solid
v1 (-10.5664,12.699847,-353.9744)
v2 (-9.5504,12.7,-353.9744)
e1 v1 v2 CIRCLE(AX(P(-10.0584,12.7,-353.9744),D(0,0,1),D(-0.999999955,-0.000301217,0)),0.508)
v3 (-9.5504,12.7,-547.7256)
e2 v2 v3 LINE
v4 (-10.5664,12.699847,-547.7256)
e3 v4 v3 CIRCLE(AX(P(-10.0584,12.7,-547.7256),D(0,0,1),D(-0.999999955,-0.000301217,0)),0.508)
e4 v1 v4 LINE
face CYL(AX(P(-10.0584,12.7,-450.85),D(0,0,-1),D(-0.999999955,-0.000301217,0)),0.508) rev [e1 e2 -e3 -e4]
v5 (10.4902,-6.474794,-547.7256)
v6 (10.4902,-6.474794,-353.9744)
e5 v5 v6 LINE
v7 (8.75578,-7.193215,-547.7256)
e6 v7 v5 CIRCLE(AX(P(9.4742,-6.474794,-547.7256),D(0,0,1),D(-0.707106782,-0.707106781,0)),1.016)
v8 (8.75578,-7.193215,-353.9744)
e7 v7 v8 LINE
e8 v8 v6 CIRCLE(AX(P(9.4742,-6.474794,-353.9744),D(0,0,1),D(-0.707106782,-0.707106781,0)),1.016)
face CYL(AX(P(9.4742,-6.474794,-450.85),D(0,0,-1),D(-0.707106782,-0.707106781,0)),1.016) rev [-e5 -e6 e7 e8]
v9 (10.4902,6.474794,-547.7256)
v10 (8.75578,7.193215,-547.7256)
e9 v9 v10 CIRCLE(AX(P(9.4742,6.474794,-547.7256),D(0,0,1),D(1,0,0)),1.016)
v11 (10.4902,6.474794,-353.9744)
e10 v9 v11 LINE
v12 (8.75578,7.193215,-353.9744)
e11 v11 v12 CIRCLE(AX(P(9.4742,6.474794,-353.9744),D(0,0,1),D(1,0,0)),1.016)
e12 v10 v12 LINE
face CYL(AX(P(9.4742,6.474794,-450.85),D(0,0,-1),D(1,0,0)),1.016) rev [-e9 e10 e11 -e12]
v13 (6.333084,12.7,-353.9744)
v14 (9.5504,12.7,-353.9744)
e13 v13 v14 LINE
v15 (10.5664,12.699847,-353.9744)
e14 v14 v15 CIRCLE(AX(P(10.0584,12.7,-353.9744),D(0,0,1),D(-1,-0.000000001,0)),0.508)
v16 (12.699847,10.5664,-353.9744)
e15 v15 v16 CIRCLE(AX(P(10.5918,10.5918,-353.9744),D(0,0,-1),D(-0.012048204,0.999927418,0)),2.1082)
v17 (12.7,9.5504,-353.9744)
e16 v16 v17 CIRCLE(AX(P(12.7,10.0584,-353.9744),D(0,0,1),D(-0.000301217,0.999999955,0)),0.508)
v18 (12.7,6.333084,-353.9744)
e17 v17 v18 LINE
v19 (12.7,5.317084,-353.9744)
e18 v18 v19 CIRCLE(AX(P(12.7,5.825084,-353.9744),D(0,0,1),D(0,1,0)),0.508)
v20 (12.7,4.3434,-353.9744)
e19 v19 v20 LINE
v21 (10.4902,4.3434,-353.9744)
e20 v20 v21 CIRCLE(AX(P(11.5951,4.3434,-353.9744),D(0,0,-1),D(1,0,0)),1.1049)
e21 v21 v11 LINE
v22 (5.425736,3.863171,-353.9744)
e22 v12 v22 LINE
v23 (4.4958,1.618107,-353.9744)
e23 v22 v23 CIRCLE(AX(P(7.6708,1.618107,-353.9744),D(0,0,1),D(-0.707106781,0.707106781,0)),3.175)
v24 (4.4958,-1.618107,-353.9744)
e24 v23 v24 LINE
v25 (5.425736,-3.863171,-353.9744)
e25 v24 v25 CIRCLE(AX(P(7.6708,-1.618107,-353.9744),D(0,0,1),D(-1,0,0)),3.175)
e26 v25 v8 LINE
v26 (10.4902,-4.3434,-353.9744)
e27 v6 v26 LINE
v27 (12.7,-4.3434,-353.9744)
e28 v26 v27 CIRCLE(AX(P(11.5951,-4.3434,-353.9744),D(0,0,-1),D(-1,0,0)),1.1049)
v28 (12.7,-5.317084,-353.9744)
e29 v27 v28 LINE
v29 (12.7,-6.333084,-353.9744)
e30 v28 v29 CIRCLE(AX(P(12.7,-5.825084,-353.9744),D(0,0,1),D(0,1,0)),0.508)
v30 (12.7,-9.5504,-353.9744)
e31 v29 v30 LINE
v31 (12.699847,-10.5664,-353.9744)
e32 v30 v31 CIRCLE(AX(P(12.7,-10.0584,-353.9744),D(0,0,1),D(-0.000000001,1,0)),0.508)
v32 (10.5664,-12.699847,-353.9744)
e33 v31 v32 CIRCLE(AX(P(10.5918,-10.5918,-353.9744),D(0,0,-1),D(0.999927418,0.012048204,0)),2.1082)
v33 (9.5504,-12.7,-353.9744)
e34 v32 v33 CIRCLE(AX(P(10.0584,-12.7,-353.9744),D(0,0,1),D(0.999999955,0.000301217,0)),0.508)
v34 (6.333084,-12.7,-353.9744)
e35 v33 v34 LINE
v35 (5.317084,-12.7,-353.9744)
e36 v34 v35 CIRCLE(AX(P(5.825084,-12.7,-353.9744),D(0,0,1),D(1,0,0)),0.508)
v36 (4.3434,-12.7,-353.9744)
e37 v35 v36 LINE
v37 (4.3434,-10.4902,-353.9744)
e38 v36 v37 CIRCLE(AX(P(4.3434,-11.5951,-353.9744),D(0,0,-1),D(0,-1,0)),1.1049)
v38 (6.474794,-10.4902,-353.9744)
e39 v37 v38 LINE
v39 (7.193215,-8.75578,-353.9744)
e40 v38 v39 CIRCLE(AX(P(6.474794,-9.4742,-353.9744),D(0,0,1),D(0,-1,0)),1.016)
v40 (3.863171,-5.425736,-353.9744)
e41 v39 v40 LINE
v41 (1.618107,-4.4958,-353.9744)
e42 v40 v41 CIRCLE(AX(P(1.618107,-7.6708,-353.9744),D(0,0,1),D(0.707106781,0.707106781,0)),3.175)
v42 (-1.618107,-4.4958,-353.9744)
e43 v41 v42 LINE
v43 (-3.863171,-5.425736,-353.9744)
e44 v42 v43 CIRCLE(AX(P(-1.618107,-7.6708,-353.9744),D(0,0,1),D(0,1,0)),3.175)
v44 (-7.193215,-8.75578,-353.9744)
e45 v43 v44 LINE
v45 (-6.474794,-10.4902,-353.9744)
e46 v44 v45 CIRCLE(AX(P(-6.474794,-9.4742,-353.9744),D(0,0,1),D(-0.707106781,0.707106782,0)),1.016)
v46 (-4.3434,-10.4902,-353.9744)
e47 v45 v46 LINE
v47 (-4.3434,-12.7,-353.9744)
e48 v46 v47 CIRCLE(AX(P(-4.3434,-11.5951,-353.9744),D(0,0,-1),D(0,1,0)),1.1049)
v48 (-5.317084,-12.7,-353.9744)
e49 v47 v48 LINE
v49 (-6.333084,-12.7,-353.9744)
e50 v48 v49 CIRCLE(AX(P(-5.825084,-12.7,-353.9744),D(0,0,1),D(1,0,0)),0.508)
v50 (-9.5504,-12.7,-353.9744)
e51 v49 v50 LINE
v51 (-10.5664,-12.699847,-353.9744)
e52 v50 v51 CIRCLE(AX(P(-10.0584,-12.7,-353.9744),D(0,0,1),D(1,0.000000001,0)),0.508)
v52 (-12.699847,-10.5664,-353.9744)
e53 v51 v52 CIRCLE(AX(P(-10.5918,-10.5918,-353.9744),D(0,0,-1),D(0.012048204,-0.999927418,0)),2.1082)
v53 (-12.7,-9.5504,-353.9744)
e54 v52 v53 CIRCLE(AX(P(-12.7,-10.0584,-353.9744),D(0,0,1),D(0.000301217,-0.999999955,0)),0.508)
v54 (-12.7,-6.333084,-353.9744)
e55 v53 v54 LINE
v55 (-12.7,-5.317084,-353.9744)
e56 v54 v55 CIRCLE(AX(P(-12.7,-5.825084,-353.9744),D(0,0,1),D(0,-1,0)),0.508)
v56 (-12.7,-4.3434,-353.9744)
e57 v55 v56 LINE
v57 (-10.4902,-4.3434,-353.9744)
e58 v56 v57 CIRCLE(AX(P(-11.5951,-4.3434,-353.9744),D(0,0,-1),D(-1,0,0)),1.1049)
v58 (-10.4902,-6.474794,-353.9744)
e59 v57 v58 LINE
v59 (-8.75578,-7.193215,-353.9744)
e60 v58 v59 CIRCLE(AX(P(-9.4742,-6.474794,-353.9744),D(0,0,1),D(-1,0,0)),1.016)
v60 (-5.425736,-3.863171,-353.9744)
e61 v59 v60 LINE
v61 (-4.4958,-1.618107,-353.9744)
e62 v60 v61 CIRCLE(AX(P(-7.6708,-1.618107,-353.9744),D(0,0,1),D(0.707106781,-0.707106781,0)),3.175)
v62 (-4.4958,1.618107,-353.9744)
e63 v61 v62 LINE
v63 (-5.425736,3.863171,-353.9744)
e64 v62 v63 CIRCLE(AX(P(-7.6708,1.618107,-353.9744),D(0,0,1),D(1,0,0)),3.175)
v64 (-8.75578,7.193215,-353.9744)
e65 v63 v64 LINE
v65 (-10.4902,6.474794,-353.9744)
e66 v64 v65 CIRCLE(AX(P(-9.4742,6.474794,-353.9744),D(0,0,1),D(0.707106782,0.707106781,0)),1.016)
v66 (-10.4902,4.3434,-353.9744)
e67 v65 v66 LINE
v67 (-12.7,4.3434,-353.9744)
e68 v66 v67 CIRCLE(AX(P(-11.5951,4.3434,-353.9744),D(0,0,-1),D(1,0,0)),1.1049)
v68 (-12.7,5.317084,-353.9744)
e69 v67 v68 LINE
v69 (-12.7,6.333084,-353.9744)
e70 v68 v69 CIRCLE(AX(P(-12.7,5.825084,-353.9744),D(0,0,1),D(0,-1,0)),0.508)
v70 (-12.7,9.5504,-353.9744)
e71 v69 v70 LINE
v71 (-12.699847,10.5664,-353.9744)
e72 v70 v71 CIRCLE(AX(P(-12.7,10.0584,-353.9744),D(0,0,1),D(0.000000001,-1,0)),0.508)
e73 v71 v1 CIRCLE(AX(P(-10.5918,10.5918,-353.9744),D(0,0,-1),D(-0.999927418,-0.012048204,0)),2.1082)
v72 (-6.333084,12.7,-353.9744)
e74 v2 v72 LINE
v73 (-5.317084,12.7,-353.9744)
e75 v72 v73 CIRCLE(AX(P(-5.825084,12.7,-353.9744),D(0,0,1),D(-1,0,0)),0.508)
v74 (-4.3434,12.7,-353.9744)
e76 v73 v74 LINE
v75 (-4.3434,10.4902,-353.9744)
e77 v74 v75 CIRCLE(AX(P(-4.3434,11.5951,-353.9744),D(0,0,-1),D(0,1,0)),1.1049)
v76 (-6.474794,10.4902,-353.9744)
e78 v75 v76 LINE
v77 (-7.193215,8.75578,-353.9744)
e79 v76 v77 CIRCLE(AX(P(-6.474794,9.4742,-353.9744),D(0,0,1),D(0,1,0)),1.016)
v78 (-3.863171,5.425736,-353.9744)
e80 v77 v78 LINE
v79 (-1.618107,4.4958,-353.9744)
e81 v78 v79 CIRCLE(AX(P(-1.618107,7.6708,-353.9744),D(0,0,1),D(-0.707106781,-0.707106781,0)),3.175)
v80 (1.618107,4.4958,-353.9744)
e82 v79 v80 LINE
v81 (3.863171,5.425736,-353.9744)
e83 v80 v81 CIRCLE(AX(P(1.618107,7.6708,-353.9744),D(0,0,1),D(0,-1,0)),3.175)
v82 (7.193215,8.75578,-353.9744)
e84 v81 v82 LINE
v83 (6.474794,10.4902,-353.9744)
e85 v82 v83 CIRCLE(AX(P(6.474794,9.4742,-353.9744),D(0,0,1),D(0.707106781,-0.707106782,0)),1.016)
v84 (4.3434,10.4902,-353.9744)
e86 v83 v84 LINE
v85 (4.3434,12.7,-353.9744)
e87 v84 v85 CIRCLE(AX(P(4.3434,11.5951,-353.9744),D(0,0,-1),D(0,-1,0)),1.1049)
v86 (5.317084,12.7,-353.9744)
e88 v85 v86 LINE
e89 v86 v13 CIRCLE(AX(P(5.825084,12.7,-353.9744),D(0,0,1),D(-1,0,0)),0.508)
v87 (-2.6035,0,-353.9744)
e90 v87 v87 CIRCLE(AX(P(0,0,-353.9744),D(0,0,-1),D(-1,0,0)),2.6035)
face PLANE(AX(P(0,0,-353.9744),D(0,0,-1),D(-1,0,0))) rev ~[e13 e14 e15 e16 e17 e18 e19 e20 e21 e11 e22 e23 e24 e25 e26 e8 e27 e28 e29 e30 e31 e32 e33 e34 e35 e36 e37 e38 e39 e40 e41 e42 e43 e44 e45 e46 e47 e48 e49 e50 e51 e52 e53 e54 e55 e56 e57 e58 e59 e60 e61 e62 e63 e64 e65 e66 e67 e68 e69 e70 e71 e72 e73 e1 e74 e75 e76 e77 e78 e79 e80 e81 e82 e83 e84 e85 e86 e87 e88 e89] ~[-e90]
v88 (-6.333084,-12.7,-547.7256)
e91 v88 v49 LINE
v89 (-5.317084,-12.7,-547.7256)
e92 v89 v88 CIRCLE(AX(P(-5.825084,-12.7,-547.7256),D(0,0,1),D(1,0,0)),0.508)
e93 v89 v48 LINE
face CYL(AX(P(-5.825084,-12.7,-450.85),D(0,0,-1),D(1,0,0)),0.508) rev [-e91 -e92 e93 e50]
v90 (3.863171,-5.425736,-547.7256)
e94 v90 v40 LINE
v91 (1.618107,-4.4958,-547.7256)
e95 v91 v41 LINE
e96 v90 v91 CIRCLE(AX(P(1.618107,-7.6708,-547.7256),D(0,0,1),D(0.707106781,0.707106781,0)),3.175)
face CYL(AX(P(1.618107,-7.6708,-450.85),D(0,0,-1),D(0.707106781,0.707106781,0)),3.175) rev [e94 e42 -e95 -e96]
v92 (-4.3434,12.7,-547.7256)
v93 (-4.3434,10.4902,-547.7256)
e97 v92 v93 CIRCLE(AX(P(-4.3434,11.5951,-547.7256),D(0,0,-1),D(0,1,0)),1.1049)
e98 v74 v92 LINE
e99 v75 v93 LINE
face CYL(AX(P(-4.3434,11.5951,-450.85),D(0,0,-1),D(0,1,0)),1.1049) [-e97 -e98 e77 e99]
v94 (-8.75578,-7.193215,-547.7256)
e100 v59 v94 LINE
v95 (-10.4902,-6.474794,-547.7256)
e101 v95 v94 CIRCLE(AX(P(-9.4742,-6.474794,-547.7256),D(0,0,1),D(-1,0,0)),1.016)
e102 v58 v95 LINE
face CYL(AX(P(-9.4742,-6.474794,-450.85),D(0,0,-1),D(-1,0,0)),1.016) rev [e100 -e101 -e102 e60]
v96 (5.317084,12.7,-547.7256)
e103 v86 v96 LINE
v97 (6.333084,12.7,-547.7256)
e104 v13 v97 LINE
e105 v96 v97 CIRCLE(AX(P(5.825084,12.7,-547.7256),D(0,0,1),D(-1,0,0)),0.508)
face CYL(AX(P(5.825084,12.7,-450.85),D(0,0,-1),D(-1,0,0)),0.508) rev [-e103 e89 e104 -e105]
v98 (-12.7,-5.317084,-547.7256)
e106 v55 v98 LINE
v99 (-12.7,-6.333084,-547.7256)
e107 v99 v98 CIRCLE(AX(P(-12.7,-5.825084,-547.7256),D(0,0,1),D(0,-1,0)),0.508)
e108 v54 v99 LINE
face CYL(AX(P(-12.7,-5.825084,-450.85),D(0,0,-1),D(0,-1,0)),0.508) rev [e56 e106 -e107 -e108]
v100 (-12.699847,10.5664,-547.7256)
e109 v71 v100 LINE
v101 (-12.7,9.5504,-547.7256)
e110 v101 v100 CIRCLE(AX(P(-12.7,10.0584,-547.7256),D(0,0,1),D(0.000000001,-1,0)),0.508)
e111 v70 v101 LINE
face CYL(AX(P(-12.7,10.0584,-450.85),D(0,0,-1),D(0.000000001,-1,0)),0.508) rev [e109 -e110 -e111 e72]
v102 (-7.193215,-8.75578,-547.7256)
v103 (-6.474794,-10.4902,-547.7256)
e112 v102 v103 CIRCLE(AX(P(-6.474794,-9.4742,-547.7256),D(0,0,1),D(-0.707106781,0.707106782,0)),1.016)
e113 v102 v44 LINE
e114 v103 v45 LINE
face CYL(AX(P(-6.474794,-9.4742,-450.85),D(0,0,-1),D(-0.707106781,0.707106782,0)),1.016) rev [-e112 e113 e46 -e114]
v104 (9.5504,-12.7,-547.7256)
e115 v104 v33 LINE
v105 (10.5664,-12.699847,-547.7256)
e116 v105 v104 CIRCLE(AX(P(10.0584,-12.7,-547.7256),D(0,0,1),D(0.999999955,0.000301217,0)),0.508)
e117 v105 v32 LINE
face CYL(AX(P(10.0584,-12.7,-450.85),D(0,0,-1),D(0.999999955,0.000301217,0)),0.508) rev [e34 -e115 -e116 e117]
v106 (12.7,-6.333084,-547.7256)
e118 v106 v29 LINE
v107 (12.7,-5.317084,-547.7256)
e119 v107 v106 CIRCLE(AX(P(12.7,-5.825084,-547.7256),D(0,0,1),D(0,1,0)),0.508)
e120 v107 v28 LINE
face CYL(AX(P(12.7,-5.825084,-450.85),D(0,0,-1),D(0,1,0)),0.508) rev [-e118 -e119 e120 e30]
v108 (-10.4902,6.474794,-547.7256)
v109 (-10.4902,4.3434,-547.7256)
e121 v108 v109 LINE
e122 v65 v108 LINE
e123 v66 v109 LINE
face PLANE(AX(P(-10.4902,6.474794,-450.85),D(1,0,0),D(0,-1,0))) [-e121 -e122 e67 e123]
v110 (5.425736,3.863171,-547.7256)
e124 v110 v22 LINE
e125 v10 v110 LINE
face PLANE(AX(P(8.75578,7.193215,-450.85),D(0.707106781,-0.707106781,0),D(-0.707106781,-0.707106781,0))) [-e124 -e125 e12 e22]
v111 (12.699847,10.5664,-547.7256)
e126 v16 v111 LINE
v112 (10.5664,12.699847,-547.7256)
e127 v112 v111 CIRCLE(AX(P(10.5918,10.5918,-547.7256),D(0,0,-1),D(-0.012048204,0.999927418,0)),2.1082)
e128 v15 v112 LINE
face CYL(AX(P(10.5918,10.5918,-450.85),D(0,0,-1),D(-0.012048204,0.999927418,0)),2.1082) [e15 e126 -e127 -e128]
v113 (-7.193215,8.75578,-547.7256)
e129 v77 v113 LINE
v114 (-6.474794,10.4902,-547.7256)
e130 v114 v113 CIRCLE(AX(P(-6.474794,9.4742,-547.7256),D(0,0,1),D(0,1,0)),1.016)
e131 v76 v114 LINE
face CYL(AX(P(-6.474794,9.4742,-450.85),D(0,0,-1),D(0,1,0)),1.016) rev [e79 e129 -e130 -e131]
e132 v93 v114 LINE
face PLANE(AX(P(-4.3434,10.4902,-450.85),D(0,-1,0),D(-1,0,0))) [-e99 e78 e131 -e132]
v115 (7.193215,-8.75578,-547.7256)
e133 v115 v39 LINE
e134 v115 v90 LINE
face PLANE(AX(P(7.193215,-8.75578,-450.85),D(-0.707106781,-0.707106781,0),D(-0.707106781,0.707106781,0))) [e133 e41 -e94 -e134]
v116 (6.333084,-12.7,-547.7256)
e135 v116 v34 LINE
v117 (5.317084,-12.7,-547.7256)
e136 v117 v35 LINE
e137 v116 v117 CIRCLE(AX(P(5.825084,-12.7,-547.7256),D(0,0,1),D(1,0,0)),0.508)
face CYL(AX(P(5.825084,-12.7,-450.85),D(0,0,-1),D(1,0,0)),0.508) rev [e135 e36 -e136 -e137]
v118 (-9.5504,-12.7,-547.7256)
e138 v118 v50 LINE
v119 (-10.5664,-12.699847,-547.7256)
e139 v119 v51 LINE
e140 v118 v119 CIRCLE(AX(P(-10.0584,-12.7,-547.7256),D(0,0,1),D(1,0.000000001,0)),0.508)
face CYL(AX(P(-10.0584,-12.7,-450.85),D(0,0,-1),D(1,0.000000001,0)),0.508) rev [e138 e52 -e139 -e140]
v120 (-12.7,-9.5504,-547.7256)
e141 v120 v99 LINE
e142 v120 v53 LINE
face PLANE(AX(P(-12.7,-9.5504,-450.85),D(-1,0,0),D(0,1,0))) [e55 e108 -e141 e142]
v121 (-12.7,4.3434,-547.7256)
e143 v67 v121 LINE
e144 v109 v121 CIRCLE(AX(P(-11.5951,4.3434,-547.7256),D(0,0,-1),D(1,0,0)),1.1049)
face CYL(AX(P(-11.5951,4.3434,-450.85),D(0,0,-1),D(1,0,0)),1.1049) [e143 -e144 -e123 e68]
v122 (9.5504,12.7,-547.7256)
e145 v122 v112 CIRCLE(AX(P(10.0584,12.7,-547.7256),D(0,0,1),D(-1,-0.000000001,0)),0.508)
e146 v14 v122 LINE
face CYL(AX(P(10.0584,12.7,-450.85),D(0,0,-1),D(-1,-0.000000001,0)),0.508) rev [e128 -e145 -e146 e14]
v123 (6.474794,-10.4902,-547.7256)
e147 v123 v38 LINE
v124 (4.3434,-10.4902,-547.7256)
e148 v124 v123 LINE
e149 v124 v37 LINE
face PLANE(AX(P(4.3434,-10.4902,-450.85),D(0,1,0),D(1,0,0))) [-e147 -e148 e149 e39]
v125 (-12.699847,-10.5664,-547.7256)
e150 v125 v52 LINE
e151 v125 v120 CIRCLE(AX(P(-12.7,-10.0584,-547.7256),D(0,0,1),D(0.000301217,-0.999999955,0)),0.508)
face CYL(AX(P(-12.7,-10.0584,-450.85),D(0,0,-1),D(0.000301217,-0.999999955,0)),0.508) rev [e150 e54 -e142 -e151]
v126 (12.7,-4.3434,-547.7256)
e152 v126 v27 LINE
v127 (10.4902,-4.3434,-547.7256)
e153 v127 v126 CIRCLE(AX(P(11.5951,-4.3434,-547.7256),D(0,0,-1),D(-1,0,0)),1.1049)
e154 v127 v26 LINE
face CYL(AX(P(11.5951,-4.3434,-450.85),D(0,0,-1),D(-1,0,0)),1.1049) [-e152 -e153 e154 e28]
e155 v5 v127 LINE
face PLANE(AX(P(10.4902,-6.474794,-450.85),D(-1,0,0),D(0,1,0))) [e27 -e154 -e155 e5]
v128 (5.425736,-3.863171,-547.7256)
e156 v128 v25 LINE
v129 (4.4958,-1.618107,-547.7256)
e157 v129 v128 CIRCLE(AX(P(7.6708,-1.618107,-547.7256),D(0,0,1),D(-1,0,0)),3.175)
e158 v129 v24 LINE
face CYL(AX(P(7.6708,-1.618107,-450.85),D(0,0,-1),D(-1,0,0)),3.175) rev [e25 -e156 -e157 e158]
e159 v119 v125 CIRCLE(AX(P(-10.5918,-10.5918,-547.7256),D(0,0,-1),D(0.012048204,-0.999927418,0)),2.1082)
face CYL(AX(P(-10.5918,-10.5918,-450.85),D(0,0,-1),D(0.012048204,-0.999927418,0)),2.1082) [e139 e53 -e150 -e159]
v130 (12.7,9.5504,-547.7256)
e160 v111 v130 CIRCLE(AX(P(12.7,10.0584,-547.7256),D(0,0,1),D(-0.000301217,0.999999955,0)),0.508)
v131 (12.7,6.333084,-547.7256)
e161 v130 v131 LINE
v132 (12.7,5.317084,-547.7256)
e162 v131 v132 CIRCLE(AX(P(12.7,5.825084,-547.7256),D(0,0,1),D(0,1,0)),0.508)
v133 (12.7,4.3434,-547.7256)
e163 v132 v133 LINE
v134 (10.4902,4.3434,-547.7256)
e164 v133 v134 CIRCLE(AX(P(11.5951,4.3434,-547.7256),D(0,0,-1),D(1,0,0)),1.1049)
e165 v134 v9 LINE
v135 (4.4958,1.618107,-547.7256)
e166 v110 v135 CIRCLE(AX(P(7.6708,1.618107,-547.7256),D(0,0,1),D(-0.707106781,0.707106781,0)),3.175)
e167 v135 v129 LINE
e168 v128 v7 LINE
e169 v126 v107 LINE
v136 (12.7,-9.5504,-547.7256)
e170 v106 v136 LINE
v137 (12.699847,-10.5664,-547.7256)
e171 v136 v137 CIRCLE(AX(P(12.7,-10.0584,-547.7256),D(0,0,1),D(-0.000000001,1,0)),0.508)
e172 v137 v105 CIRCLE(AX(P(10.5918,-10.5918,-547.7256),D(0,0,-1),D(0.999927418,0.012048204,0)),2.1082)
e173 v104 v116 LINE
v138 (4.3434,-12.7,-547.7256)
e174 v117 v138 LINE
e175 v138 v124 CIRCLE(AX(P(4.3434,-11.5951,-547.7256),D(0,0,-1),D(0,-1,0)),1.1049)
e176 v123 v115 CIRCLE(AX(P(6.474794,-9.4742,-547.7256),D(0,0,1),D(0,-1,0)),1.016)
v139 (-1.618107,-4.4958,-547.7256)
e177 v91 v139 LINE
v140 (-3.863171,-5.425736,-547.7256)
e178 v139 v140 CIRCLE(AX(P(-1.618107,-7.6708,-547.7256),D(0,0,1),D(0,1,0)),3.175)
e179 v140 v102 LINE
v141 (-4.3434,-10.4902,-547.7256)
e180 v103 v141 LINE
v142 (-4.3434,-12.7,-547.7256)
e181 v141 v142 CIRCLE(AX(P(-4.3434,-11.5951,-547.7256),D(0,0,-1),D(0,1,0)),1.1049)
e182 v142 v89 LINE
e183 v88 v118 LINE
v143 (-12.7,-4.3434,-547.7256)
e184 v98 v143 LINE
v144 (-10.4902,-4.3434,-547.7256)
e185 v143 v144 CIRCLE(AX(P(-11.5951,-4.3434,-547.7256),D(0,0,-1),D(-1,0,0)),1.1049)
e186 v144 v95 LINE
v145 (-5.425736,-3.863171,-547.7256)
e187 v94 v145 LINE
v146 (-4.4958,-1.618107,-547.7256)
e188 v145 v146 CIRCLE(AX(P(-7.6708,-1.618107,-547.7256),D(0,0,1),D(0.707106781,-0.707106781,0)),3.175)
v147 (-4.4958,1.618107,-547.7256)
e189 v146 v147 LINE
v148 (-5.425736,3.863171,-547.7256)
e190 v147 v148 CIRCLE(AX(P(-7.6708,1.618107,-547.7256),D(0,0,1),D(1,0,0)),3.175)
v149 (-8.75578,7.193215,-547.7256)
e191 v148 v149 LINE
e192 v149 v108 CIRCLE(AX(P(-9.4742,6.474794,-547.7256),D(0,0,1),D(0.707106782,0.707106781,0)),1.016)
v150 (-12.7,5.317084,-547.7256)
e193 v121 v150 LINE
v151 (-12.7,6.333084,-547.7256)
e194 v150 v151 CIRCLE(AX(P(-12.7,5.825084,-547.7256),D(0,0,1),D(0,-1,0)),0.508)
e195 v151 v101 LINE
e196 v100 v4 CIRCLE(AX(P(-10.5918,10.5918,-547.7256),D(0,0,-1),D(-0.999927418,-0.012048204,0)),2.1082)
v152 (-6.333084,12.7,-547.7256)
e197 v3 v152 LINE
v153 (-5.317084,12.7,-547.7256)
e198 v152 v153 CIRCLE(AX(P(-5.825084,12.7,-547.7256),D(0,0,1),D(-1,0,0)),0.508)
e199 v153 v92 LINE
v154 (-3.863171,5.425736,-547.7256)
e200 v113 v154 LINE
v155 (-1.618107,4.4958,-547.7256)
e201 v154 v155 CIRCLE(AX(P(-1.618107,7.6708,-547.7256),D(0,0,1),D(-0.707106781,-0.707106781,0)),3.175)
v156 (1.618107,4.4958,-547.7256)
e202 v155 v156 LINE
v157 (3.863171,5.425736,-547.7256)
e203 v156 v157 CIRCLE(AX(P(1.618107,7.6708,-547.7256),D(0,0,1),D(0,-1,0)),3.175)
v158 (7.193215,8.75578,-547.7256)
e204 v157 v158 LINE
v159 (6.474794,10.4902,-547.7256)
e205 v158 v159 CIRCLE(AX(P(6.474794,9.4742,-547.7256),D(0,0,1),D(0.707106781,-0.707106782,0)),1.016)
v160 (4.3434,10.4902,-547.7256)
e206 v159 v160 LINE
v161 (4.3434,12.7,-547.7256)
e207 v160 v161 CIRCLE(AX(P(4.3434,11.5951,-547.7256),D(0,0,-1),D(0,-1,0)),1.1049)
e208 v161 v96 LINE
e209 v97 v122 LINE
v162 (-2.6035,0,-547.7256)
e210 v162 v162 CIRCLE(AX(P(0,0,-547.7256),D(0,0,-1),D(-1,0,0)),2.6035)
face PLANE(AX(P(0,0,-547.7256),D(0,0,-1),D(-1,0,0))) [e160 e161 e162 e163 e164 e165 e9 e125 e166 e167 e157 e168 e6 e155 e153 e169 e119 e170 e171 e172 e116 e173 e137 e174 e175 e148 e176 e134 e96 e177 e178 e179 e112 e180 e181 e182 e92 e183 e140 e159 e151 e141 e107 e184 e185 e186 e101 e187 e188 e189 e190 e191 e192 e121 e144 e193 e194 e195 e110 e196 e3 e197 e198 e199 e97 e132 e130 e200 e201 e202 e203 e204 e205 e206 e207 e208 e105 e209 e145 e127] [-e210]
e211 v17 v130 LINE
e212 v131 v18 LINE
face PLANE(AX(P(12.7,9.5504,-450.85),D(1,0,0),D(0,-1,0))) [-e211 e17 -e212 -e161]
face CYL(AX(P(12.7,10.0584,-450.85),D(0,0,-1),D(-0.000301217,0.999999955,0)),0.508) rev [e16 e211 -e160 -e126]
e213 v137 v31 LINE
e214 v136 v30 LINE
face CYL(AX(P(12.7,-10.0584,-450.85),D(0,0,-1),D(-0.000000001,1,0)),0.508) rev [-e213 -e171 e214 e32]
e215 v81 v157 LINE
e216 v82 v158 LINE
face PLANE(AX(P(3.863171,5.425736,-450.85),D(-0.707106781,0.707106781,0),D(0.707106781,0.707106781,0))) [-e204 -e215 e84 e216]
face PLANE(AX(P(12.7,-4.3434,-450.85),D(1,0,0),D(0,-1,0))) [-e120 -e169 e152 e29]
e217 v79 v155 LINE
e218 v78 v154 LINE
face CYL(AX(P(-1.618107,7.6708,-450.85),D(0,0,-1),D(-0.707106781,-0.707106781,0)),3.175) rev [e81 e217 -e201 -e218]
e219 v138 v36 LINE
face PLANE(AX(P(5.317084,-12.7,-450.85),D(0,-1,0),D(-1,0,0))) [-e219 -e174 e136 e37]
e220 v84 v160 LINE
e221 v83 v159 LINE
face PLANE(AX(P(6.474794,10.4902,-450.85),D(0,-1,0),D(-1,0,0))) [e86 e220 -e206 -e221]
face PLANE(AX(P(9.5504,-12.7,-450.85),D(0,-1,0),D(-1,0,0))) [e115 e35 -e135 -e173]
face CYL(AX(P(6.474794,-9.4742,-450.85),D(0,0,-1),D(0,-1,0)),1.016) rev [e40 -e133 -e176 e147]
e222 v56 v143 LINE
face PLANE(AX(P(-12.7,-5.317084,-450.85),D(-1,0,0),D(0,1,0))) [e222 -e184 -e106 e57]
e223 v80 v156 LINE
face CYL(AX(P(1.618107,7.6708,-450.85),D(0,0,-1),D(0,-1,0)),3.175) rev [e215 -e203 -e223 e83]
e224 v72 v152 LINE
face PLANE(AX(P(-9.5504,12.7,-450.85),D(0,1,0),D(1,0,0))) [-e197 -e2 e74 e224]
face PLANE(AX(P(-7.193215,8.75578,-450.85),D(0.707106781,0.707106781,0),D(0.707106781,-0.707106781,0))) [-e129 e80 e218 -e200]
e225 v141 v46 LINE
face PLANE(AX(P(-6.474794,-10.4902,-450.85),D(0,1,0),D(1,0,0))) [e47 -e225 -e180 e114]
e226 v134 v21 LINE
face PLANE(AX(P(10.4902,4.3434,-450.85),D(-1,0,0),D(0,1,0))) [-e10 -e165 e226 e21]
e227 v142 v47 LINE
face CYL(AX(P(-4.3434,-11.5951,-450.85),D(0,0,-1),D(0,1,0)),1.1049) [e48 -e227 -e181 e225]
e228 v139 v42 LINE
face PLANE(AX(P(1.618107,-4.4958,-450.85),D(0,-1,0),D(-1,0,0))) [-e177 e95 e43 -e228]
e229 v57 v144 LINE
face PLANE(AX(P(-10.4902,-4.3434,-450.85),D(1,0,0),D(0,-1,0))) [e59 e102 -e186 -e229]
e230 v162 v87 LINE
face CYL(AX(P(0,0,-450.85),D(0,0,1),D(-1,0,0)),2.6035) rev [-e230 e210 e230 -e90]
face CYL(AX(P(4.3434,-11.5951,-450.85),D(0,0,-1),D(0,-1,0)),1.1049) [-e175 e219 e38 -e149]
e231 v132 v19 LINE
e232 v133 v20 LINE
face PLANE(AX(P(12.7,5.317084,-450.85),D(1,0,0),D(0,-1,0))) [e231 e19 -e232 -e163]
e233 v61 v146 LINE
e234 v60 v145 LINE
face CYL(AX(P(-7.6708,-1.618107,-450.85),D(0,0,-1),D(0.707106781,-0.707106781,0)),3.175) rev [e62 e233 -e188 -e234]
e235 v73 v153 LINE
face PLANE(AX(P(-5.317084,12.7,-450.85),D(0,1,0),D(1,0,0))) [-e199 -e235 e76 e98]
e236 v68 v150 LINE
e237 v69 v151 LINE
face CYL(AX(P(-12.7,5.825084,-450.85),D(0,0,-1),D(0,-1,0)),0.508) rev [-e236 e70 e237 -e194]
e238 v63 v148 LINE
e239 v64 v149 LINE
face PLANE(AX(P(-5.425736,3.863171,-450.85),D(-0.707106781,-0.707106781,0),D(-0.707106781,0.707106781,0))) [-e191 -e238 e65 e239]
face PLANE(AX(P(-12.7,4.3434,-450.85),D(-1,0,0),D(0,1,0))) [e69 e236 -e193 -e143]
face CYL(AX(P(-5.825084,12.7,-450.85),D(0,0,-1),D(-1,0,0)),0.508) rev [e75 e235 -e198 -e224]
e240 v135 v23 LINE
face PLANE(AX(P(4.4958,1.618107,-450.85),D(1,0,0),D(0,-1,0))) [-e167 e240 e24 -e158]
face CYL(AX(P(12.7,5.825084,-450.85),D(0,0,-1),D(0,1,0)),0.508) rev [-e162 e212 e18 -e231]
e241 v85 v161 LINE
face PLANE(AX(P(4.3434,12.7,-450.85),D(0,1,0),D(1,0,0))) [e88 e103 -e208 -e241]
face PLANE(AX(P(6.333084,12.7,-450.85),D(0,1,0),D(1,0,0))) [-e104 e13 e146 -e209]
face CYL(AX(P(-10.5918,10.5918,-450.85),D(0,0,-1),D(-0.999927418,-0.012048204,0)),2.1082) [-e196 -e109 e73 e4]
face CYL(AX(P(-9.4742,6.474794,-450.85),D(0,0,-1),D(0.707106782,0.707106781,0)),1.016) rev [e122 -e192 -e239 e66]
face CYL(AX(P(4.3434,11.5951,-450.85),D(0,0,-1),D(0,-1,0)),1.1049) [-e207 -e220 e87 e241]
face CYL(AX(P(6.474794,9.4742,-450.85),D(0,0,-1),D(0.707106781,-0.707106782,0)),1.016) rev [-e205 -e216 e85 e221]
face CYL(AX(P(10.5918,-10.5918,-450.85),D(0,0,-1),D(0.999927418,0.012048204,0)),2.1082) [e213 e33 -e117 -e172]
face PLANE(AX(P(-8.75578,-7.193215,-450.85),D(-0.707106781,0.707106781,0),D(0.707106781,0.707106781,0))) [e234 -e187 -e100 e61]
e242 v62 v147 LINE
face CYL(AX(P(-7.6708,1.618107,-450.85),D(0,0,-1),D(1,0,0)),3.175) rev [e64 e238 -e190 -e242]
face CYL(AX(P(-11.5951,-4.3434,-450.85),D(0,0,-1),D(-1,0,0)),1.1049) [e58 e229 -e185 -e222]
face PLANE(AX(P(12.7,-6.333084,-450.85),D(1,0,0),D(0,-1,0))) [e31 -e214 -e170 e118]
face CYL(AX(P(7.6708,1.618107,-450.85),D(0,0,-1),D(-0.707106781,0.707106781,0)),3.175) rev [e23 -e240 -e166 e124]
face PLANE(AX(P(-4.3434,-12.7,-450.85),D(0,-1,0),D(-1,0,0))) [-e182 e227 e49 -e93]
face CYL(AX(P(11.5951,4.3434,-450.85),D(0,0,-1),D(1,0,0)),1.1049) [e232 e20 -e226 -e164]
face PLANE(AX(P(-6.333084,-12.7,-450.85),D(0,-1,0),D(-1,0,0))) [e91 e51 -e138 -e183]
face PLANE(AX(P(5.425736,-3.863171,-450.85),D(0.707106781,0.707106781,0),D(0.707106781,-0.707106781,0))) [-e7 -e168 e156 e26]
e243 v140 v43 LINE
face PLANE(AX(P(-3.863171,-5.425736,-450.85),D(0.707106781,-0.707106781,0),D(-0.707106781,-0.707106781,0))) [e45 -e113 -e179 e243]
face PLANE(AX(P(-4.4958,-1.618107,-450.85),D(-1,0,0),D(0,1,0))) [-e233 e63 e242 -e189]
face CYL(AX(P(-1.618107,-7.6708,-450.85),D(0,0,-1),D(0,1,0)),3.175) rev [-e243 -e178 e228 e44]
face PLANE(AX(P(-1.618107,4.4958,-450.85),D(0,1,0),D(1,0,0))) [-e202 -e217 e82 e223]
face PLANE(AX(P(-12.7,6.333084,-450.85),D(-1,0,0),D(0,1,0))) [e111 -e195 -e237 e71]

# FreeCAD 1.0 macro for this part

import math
import FreeCAD as App
import Part
import Sketcher
from FreeCAD import Vector
Q = App.Units.Quantity

doc = App.newDocument("Part")
body = doc.addObject("PartDesign::Body", "Body")

sketch1 = body.newObject("Sketcher::SketchObject", "Sketch")
sketch1.AttachmentSupport = (doc.getObject("XY_Plane"), [""])
sketch1.MapMode = "FlatFace"
sketch1.AttachmentOffset = App.Placement(Vector(0, 0, -17.75 * 25.4), App.Rotation())
sketch1.addGeometry(Part.LineSegment(Vector(-12.7, -9.6, 0), Vector(-12.7, -6.3, 0)), False)
sketch1.addGeometry(Part.ArcOfCircle(Part.Circle(Vector(-12.7, -5.8, 0), Vector(0, 0, 1), 0.5), math.radians(-90), math.radians(90)), False)
sketch1.addGeometry(Part.LineSegment(Vector(-12.7, -5.3, 0), Vector(-12.7, -4.3, 0)), False)
sketch1.addGeometry(Part.ArcOfCircle(Part.Circle(Vector(-11.6, -4.3, 0), Vector(0, 0, 1), 1.1), math.radians(0), math.radians(180)), False)
sketch1.addGeometry(Part.LineSegment(Vector(-10.5, -4.3, 0), Vector(-10.5, -6.5, 0)), False)
sketch1.addGeometry(Part.ArcOfCircle(Part.Circle(Vector(-9.5, -6.5, 0), Vector(0, 0, 1), 1), math.radians(180), math.radians(315)), False)
sketch1.addGeometry(Part.LineSegment(Vector(-8.8, -7.2, 0), Vector(-5.4, -3.9, 0)), False)
sketch1.addGeometry(Part.ArcOfCircle(Part.Circle(Vector(-7.7, -1.6, 0), Vector(0, 0, 1), 3.2), math.radians(-45), math.radians(0)), False)
sketch1.addGeometry(Part.LineSegment(Vector(-4.5, -1.6, 0), Vector(-4.5, 1.6, 0)), False)
sketch1.addGeometry(Part.ArcOfCircle(Part.Circle(Vector(-7.7, 1.6, 0), Vector(0, 0, 1), 3.2), math.radians(0), math.radians(45)), False)
sketch1.addGeometry(Part.LineSegment(Vector(-5.4, 3.9, 0), Vector(-8.8, 7.2, 0)), False)
sketch1.addGeometry(Part.ArcOfCircle(Part.Circle(Vector(-9.5, 6.5, 0), Vector(0, 0, 1), 1), math.radians(45), math.radians(180)), False)
sketch1.addGeometry(Part.LineSegment(Vector(-10.5, 6.5, 0), Vector(-10.5, 4.3, 0)), False)
sketch1.addGeometry(Part.ArcOfCircle(Part.Circle(Vector(-11.6, 4.3, 0), Vector(0, 0, 1), 1.1), math.radians(180), math.radians(360)), False)
sketch1.addGeometry(Part.LineSegment(Vector(-12.7, 4.3, 0), Vector(-12.7, 5.3, 0)), False)
sketch1.addGeometry(Part.ArcOfCircle(Part.Circle(Vector(-12.7, 5.8, 0), Vector(0, 0, 1), 0.5), math.radians(-90), math.radians(90)), False)
sketch1.addGeometry(Part.LineSegment(Vector(-12.7, 6.3, 0), Vector(-12.7, 9.6, 0)), False)
sketch1.addGeometry(Part.ArcOfCircle(Part.Circle(Vector(-12.7, 10.1, 0), Vector(0, 0, 1), 0.5), math.radians(-90), math.radians(90)), False)
sketch1.addGeometry(Part.ArcOfCircle(Part.Circle(Vector(-10.6, 10.6, 0), Vector(0, 0, 1), 2.1), math.radians(89), math.radians(181)), False)
sketch1.addGeometry(Part.ArcOfCircle(Part.Circle(Vector(-10.1, 12.7, 0), Vector(0, 0, 1), 0.5), math.radians(-180), math.radians(0)), False)
sketch1.addGeometry(Part.LineSegment(Vector(-9.6, 12.7, 0), Vector(-6.3, 12.7, 0)), False)
sketch1.addGeometry(Part.ArcOfCircle(Part.Circle(Vector(-5.8, 12.7, 0), Vector(0, 0, 1), 0.5), math.radians(180), math.radians(360)), False)
sketch1.addGeometry(Part.LineSegment(Vector(-5.3, 12.7, 0), Vector(-4.3, 12.7, 0)), False)
sketch1.addGeometry(Part.ArcOfCircle(Part.Circle(Vector(-4.3, 11.6, 0), Vector(0, 0, 1), 1.1), math.radians(-90), math.radians(90)), False)
sketch1.addGeometry(Part.LineSegment(Vector(-4.3, 10.5, 0), Vector(-6.5, 10.5, 0)), False)
sketch1.addGeometry(Part.ArcOfCircle(Part.Circle(Vector(-6.5, 9.5, 0), Vector(0, 0, 1), 1), math.radians(90), math.radians(225)), False)
sketch1.addGeometry(Part.LineSegment(Vector(-7.2, 8.8, 0), Vector(-3.9, 5.4, 0)), False)
sketch1.addGeometry(Part.ArcOfCircle(Part.Circle(Vector(-1.6, 7.7, 0), Vector(0, 0, 1), 3.2), math.radians(-135), math.radians(-90)), False)
sketch1.addGeometry(Part.LineSegment(Vector(-1.6, 4.5, 0), Vector(1.6, 4.5, 0)), False)
sketch1.addGeometry(Part.ArcOfCircle(Part.Circle(Vector(1.6, 7.7, 0), Vector(0, 0, 1), 3.2), math.radians(-90), math.radians(-45)), False)
sketch1.addGeometry(Part.LineSegment(Vector(3.9, 5.4, 0), Vector(7.2, 8.8, 0)), False)
sketch1.addGeometry(Part.ArcOfCircle(Part.Circle(Vector(6.5, 9.5, 0), Vector(0, 0, 1), 1), math.radians(-45), math.radians(90)), False)
sketch1.addGeometry(Part.LineSegment(Vector(6.5, 10.5, 0), Vector(4.3, 10.5, 0)), False)
sketch1.addGeometry(Part.ArcOfCircle(Part.Circle(Vector(4.3, 11.6, 0), Vector(0, 0, 1), 1.1), math.radians(90), math.radians(270)), False)
sketch1.addGeometry(Part.LineSegment(Vector(4.3, 12.7, 0), Vector(5.3, 12.7, 0)), False)
sketch1.addGeometry(Part.ArcOfCircle(Part.Circle(Vector(5.8, 12.7, 0), Vector(0, 0, 1), 0.5), math.radians(180), math.radians(360)), False)
sketch1.addGeometry(Part.LineSegment(Vector(6.3, 12.7, 0), Vector(9.6, 12.7, 0)), False)
sketch1.addGeometry(Part.ArcOfCircle(Part.Circle(Vector(10.1, 12.7, 0), Vector(0, 0, 1), 0.5), math.radians(180), math.radians(360)), False)
sketch1.addGeometry(Part.ArcOfCircle(Part.Circle(Vector(10.6, 10.6, 0), Vector(0, 0, 1), 2.1), math.radians(-1), math.radians(91)), False)
sketch1.addGeometry(Part.ArcOfCircle(Part.Circle(Vector(12.7, 10.1, 0), Vector(0, 0, 1), 0.5), math.radians(90), math.radians(270)), False)
sketch1.addGeometry(Part.LineSegment(Vector(12.7, 9.6, 0), Vector(12.7, 6.3, 0)), False)
sketch1.addGeometry(Part.ArcOfCircle(Part.Circle(Vector(12.7, 5.8, 0), Vector(0, 0, 1), 0.5), math.radians(90), math.radians(270)), False)
sketch1.addGeometry(Part.LineSegment(Vector(12.7, 5.3, 0), Vector(12.7, 4.3, 0)), False)
sketch1.addGeometry(Part.ArcOfCircle(Part.Circle(Vector(11.6, 4.3, 0), Vector(0, 0, 1), 1.1), math.radians(180), math.radians(360)), False)
sketch1.addGeometry(Part.LineSegment(Vector(10.5, 4.3, 0), Vector(10.5, 6.5, 0)), False)
sketch1.addGeometry(Part.ArcOfCircle(Part.Circle(Vector(9.5, 6.5, 0), Vector(0, 0, 1), 1), math.radians(0), math.radians(135)), False)
sketch1.addGeometry(Part.LineSegment(Vector(8.8, 7.2, 0), Vector(5.4, 3.9, 0)), False)
sketch1.addGeometry(Part.ArcOfCircle(Part.Circle(Vector(7.7, 1.6, 0), Vector(0, 0, 1), 3.2), math.radians(135), math.radians(180)), False)
sketch1.addGeometry(Part.LineSegment(Vector(4.5, 1.6, 0), Vector(4.5, -1.6, 0)), False)
sketch1.addGeometry(Part.ArcOfCircle(Part.Circle(Vector(7.7, -1.6, 0), Vector(0, 0, 1), 3.2), math.radians(180), math.radians(225)), False)
sketch1.addGeometry(Part.LineSegment(Vector(5.4, -3.9, 0), Vector(8.8, -7.2, 0)), False)
sketch1.addGeometry(Part.ArcOfCircle(Part.Circle(Vector(9.5, -6.5, 0), Vector(0, 0, 1), 1), math.radians(-135), math.radians(0)), False)
sketch1.addGeometry(Part.LineSegment(Vector(10.5, -6.5, 0), Vector(10.5, -4.3, 0)), False)
sketch1.addGeometry(Part.ArcOfCircle(Part.Circle(Vector(11.6, -4.3, 0), Vector(0, 0, 1), 1.1), math.radians(0), math.radians(180)), False)
sketch1.addGeometry(Part.LineSegment(Vector(12.7, -4.3, 0), Vector(12.7, -5.3, 0)), False)
sketch1.addGeometry(Part.ArcOfCircle(Part.Circle(Vector(12.7, -5.8, 0), Vector(0, 0, 1), 0.5), math.radians(90), math.radians(270)), False)
sketch1.addGeometry(Part.LineSegment(Vector(12.7, -6.3, 0), Vector(12.7, -9.6, 0)), False)
sketch1.addGeometry(Part.ArcOfCircle(Part.Circle(Vector(12.7, -10.1, 0), Vector(0, 0, 1), 0.5), math.radians(90), math.radians(270)), False)
sketch1.addGeometry(Part.ArcOfCircle(Part.Circle(Vector(10.6, -10.6, 0), Vector(0, 0, 1), 2.1), math.radians(-91), math.radians(1)), False)
sketch1.addGeometry(Part.ArcOfCircle(Part.Circle(Vector(10.1, -12.7, 0), Vector(0, 0, 1), 0.5), math.radians(0), math.radians(180)), False)
sketch1.addGeometry(Part.LineSegment(Vector(9.6, -12.7, 0), Vector(6.3, -12.7, 0)), False)
sketch1.addGeometry(Part.ArcOfCircle(Part.Circle(Vector(5.8, -12.7, 0), Vector(0, 0, 1), 0.5), math.radians(0), math.radians(180)), False)
sketch1.addGeometry(Part.LineSegment(Vector(5.3, -12.7, 0), Vector(4.3, -12.7, 0)), False)
sketch1.addGeometry(Part.ArcOfCircle(Part.Circle(Vector(4.3, -11.6, 0), Vector(0, 0, 1), 1.1), math.radians(90), math.radians(270)), False)
sketch1.addGeometry(Part.LineSegment(Vector(4.3, -10.5, 0), Vector(6.5, -10.5, 0)), False)
sketch1.addGeometry(Part.ArcOfCircle(Part.Circle(Vector(6.5, -9.5, 0), Vector(0, 0, 1), 1), math.radians(-90), math.radians(45)), False)
sketch1.addGeometry(Part.LineSegment(Vector(7.2, -8.8, 0), Vector(3.9, -5.4, 0)), False)
sketch1.addGeometry(Part.ArcOfCircle(Part.Circle(Vector(1.6, -7.7, 0), Vector(0, 0, 1), 3.2), math.radians(45), math.radians(90)), False)
sketch1.addGeometry(Part.LineSegment(Vector(1.6, -4.5, 0), Vector(-1.6, -4.5, 0)), False)
sketch1.addGeometry(Part.ArcOfCircle(Part.Circle(Vector(-1.6, -7.7, 0), Vector(0, 0, 1), 3.2), math.radians(90), math.radians(135)), False)
sketch1.addGeometry(Part.LineSegment(Vector(-3.9, -5.4, 0), Vector(-7.2, -8.8, 0)), False)
sketch1.addGeometry(Part.ArcOfCircle(Part.Circle(Vector(-6.5, -9.5, 0), Vector(0, 0, 1), 1), math.radians(135), math.radians(270)), False)
sketch1.addGeometry(Part.LineSegment(Vector(-6.5, -10.5, 0), Vector(-4.3, -10.5, 0)), False)
sketch1.addGeometry(Part.ArcOfCircle(Part.Circle(Vector(-4.3, -11.6, 0), Vector(0, 0, 1), 1.1), math.radians(-90), math.radians(90)), False)
sketch1.addGeometry(Part.LineSegment(Vector(-4.3, -12.7, 0), Vector(-5.3, -12.7, 0)), False)
sketch1.addGeometry(Part.ArcOfCircle(Part.Circle(Vector(-5.8, -12.7, 0), Vector(0, 0, 1), 0.5), math.radians(0), math.radians(180)), False)
sketch1.addGeometry(Part.LineSegment(Vector(-6.3, -12.7, 0), Vector(-9.6, -12.7, 0)), False)
sketch1.addGeometry(Part.ArcOfCircle(Part.Circle(Vector(-10.1, -12.7, 0), Vector(0, 0, 1), 0.5), math.radians(0), math.radians(180)), False)
sketch1.addGeometry(Part.ArcOfCircle(Part.Circle(Vector(-10.6, -10.6, 0), Vector(0, 0, 1), 2.1), math.radians(179), math.radians(271)), False)
sketch1.addGeometry(Part.ArcOfCircle(Part.Circle(Vector(-12.7, -10.1, 0), Vector(0, 0, 1), 0.5), math.radians(-90), math.radians(90)), False)
sketch1.addGeometry(Part.Circle(Vector(0, 0, 0), Vector(0, 0, 1), 2.6), False)
sketch1.addConstraint(Sketcher.Constraint("Coincident", 0, 2, 1, 1))
sketch1.addConstraint(Sketcher.Constraint("Coincident", 1, 2, 2, 1))
sketch1.addConstraint(Sketcher.Constraint("Tangent", 2, 2, 3, 2))
sketch1.addConstraint(Sketcher.Constraint("Tangent", 3, 1, 4, 1))
sketch1.addConstraint(Sketcher.Constraint("Tangent", 4, 2, 5, 1))
sketch1.addConstraint(Sketcher.Constraint("Tangent", 5, 2, 6, 1))
sketch1.addConstraint(Sketcher.Constraint("Tangent", 6, 2, 7, 1))
sketch1.addConstraint(Sketcher.Constraint("Tangent", 7, 2, 8, 1))
sketch1.addConstraint(Sketcher.Constraint("Tangent", 8, 2, 9, 1))
sketch1.addConstraint(Sketcher.Constraint("Tangent", 9, 2, 10, 1))
sketch1.addConstraint(Sketcher.Constraint("Tangent", 10, 2, 11, 1))
sketch1.addConstraint(Sketcher.Constraint("Tangent", 11, 2, 12, 1))
sketch1.addConstraint(Sketcher.Constraint("Tangent", 12, 2, 13, 2))
sketch1.addConstraint(Sketcher.Constraint("Tangent", 13, 1, 14, 1))
sketch1.addConstraint(Sketcher.Constraint("Coincident", 14, 2, 15, 1))
sketch1.addConstraint(Sketcher.Constraint("Coincident", 15, 2, 16, 1))
sketch1.addConstraint(Sketcher.Constraint("Coincident", 16, 2, 17, 1))
sketch1.addConstraint(Sketcher.Constraint("Coincident", 17, 2, 18, 2))
sketch1.addConstraint(Sketcher.Constraint("Coincident", 18, 1, 19, 1))
sketch1.addConstraint(Sketcher.Constraint("Coincident", 19, 2, 20, 1))
sketch1.addConstraint(Sketcher.Constraint("Coincident", 20, 2, 21, 1))
sketch1.addConstraint(Sketcher.Constraint("Coincident", 21, 2, 22, 1))
sketch1.addConstraint(Sketcher.Constraint("Tangent", 22, 2, 23, 2))
sketch1.addConstraint(Sketcher.Constraint("Tangent", 23, 1, 24, 1))
sketch1.addConstraint(Sketcher.Constraint("Tangent", 24, 2, 25, 1))
sketch1.addConstraint(Sketcher.Constraint("Tangent", 25, 2, 26, 1))
sketch1.addConstraint(Sketcher.Constraint("Tangent", 26, 2, 27, 1))
sketch1.addConstraint(Sketcher.Constraint("Tangent", 27, 2, 28, 1))
sketch1.addConstraint(Sketcher.Constraint("Tangent", 28, 2, 29, 1))
sketch1.addConstraint(Sketcher.Constraint("Tangent", 29, 2, 30, 1))
sketch1.addConstraint(Sketcher.Constraint("Tangent", 30, 2, 31, 1))
sketch1.addConstraint(Sketcher.Constraint("Tangent", 31, 2, 32, 1))
sketch1.addConstraint(Sketcher.Constraint("Tangent", 32, 2, 33, 2))
sketch1.addConstraint(Sketcher.Constraint("Tangent", 33, 1, 34, 1))
sketch1.addConstraint(Sketcher.Constraint("Coincident", 34, 2, 35, 1))
sketch1.addConstraint(Sketcher.Constraint("Coincident", 35, 2, 36, 1))
sketch1.addConstraint(Sketcher.Constraint("Coincident", 36, 2, 37, 1))
sketch1.addConstraint(Sketcher.Constraint("Coincident", 37, 2, 38, 2))
sketch1.addConstraint(Sketcher.Constraint("Coincident", 38, 1, 39, 1))
sketch1.addConstraint(Sketcher.Constraint("Coincident", 39, 2, 40, 1))
sketch1.addConstraint(Sketcher.Constraint("Coincident", 40, 2, 41, 1))
sketch1.addConstraint(Sketcher.Constraint("Coincident", 41, 2, 42, 1))
sketch1.addConstraint(Sketcher.Constraint("Tangent", 42, 2, 43, 2))
sketch1.addConstraint(Sketcher.Constraint("Tangent", 43, 1, 44, 1))
sketch1.addConstraint(Sketcher.Constraint("Tangent", 44, 2, 45, 1))
sketch1.addConstraint(Sketcher.Constraint("Tangent", 45, 2, 46, 1))
sketch1.addConstraint(Sketcher.Constraint("Tangent", 46, 2, 47, 1))
sketch1.addConstraint(Sketcher.Constraint("Tangent", 47, 2, 48, 1))
sketch1.addConstraint(Sketcher.Constraint("Tangent", 48, 2, 49, 1))
sketch1.addConstraint(Sketcher.Constraint("Tangent", 49, 2, 50, 1))
sketch1.addConstraint(Sketcher.Constraint("Tangent", 50, 2, 51, 1))
sketch1.addConstraint(Sketcher.Constraint("Tangent", 51, 2, 52, 1))
sketch1.addConstraint(Sketcher.Constraint("Tangent", 52, 2, 53, 2))
sketch1.addConstraint(Sketcher.Constraint("Tangent", 53, 1, 54, 1))
sketch1.addConstraint(Sketcher.Constraint("Coincident", 54, 2, 55, 1))
sketch1.addConstraint(Sketcher.Constraint("Coincident", 55, 2, 56, 1))
sketch1.addConstraint(Sketcher.Constraint("Coincident", 56, 2, 57, 1))
sketch1.addConstraint(Sketcher.Constraint("Coincident", 57, 2, 58, 2))
sketch1.addConstraint(Sketcher.Constraint("Coincident", 58, 1, 59, 1))
sketch1.addConstraint(Sketcher.Constraint("Coincident", 59, 2, 60, 1))
sketch1.addConstraint(Sketcher.Constraint("Coincident", 60, 2, 61, 1))
sketch1.addConstraint(Sketcher.Constraint("Coincident", 61, 2, 62, 1))
sketch1.addConstraint(Sketcher.Constraint("Tangent", 62, 2, 63, 2))
sketch1.addConstraint(Sketcher.Constraint("Tangent", 63, 1, 64, 1))
sketch1.addConstraint(Sketcher.Constraint("Tangent", 64, 2, 65, 1))
sketch1.addConstraint(Sketcher.Constraint("Tangent", 65, 2, 66, 1))
sketch1.addConstraint(Sketcher.Constraint("Tangent", 66, 2, 67, 1))
sketch1.addConstraint(Sketcher.Constraint("Tangent", 67, 2, 68, 1))
sketch1.addConstraint(Sketcher.Constraint("Tangent", 68, 2, 69, 1))
sketch1.addConstraint(Sketcher.Constraint("Tangent", 69, 2, 70, 1))
sketch1.addConstraint(Sketcher.Constraint("Tangent", 70, 2, 71, 1))
sketch1.addConstraint(Sketcher.Constraint("Tangent", 71, 2, 72, 1))
sketch1.addConstraint(Sketcher.Constraint("Tangent", 72, 2, 73, 2))
sketch1.addConstraint(Sketcher.Constraint("Tangent", 73, 1, 74, 1))
sketch1.addConstraint(Sketcher.Constraint("Coincident", 74, 2, 75, 1))
sketch1.addConstraint(Sketcher.Constraint("Coincident", 75, 2, 76, 1))
sketch1.addConstraint(Sketcher.Constraint("Coincident", 76, 2, 77, 1))
sketch1.addConstraint(Sketcher.Constraint("Coincident", 77, 2, 78, 2))
sketch1.addConstraint(Sketcher.Constraint("Coincident", 78, 1, 79, 1))
sketch1.addConstraint(Sketcher.Constraint("Coincident", 79, 2, 0, 1))
sketch1.addConstraint(Sketcher.Constraint("Vertical", 0))
sketch1.addConstraint(Sketcher.Constraint("Vertical", 2))
sketch1.addConstraint(Sketcher.Constraint("Vertical", 4))
sketch1.addConstraint(Sketcher.Constraint("Vertical", 8))
sketch1.addConstraint(Sketcher.Constraint("Vertical", 12))
sketch1.addConstraint(Sketcher.Constraint("Vertical", 14))
sketch1.addConstraint(Sketcher.Constraint("Vertical", 16))
sketch1.addConstraint(Sketcher.Constraint("Horizontal", 20))
sketch1.addConstraint(Sketcher.Constraint("Horizontal", 22))
sketch1.addConstraint(Sketcher.Constraint("Horizontal", 24))
sketch1.addConstraint(Sketcher.Constraint("Horizontal", 28))
sketch1.addConstraint(Sketcher.Constraint("Horizontal", 32))
sketch1.addConstraint(Sketcher.Constraint("Horizontal", 34))
sketch1.addConstraint(Sketcher.Constraint("Horizontal", 36))
sketch1.addConstraint(Sketcher.Constraint("Vertical", 40))
sketch1.addConstraint(Sketcher.Constraint("Vertical", 42))
sketch1.addConstraint(Sketcher.Constraint("Vertical", 44))
sketch1.addConstraint(Sketcher.Constraint("Vertical", 48))
sketch1.addConstraint(Sketcher.Constraint("Vertical", 52))
sketch1.addConstraint(Sketcher.Constraint("Vertical", 54))
sketch1.addConstraint(Sketcher.Constraint("Vertical", 56))
sketch1.addConstraint(Sketcher.Constraint("Horizontal", 60))
sketch1.addConstraint(Sketcher.Constraint("Horizontal", 62))
sketch1.addConstraint(Sketcher.Constraint("Horizontal", 64))
sketch1.addConstraint(Sketcher.Constraint("Horizontal", 68))
sketch1.addConstraint(Sketcher.Constraint("Horizontal", 72))
sketch1.addConstraint(Sketcher.Constraint("Horizontal", 74))
sketch1.addConstraint(Sketcher.Constraint("Horizontal", 76))
sketch1.addConstraint(Sketcher.Constraint("Coincident", 80, 3, -1, 1))
sketch1.addConstraint(Sketcher.Constraint("Equal", 7, 9))
sketch1.addConstraint(Sketcher.Constraint("Equal", 5, 11))
sketch1.addConstraint(Sketcher.Constraint("Equal", 3, 13))
sketch1.addConstraint(Sketcher.Constraint("Equal", 1, 15))
sketch1.addConstraint(Sketcher.Constraint("Equal", 15, 17))
sketch1.addConstraint(Sketcher.Constraint("Equal", 17, 19))
sketch1.addConstraint(Sketcher.Constraint("Equal", 19, 21))
sketch1.addConstraint(Sketcher.Constraint("Equal", 13, 23))
sketch1.addConstraint(Sketcher.Constraint("Equal", 11, 25))
sketch1.addConstraint(Sketcher.Constraint("Equal", 9, 27))
sketch1.addConstraint(Sketcher.Constraint("Equal", 27, 29))
sketch1.addConstraint(Sketcher.Constraint("Equal", 25, 31))
sketch1.addConstraint(Sketcher.Constraint("Equal", 23, 33))
sketch1.addConstraint(Sketcher.Constraint("Equal", 21, 35))
sketch1.addConstraint(Sketcher.Constraint("Equal", 35, 37))
sketch1.addConstraint(Sketcher.Constraint("Equal", 18, 38))
sketch1.addConstraint(Sketcher.Constraint("Equal", 37, 39))
sketch1.addConstraint(Sketcher.Constraint("Equal", 39, 41))
sketch1.addConstraint(Sketcher.Constraint("Equal", 33, 43))
sketch1.addConstraint(Sketcher.Constraint("Equal", 31, 45))
sketch1.addConstraint(Sketcher.Constraint("Equal", 29, 47))
sketch1.addConstraint(Sketcher.Constraint("Equal", 47, 49))
sketch1.addConstraint(Sketcher.Constraint("Equal", 45, 51))
sketch1.addConstraint(Sketcher.Constraint("Equal", 43, 53))
sketch1.addConstraint(Sketcher.Constraint("Equal", 41, 55))
sketch1.addConstraint(Sketcher.Constraint("Equal", 55, 57))
sketch1.addConstraint(Sketcher.Constraint("Equal", 38, 58))
sketch1.addConstraint(Sketcher.Constraint("Equal", 57, 59))
sketch1.addConstraint(Sketcher.Constraint("Equal", 59, 61))
sketch1.addConstraint(Sketcher.Constraint("Equal", 53, 63))
sketch1.addConstraint(Sketcher.Constraint("Equal", 51, 65))
sketch1.addConstraint(Sketcher.Constraint("Equal", 49, 67))
sketch1.addConstraint(Sketcher.Constraint("Equal", 67, 69))
sketch1.addConstraint(Sketcher.Constraint("Equal", 65, 71))
sketch1.addConstraint(Sketcher.Constraint("Equal", 63, 73))
sketch1.addConstraint(Sketcher.Constraint("Equal", 61, 75))
sketch1.addConstraint(Sketcher.Constraint("Equal", 75, 77))
sketch1.addConstraint(Sketcher.Constraint("Equal", 58, 78))
sketch1.addConstraint(Sketcher.Constraint("Equal", 77, 79))
sketch1.addConstraint(Sketcher.Constraint("Symmetric", 1, 3, 41, 3, -1, 1))
sketch1.addConstraint(Sketcher.Constraint("Symmetric", 3, 3, 43, 3, -1, 1))
sketch1.addConstraint(Sketcher.Constraint("Symmetric", 7, 3, 47, 3, -1, 1))
sketch1.addConstraint(Sketcher.Constraint("Symmetric", 11, 3, 51, 3, -1, 1))
sketch1.addConstraint(Sketcher.Constraint("Symmetric", 15, 3, 55, 3, -1, 1))
sketch1.addConstraint(Sketcher.Constraint("Symmetric", 17, 3, 57, 3, -1, 1))
sketch1.addConstraint(Sketcher.Constraint("Symmetric", 18, 3, 58, 3, -1, 1))
sketch1.addConstraint(Sketcher.Constraint("Symmetric", 19, 3, 59, 3, -1, 1))
sketch1.addConstraint(Sketcher.Constraint("Symmetric", 21, 3, 61, 3, -1, 1))
sketch1.addConstraint(Sketcher.Constraint("Symmetric", 23, 3, 63, 3, -1, 1))
sketch1.addConstraint(Sketcher.Constraint("Symmetric", 27, 3, 67, 3, -1, 1))
sketch1.addConstraint(Sketcher.Constraint("Symmetric", 31, 3, 71, 3, -1, 1))
sketch1.addConstraint(Sketcher.Constraint("Symmetric", 35, 3, 75, 3, -1, 1))
sketch1.addConstraint(Sketcher.Constraint("Symmetric", 37, 3, 77, 3, -1, 1))
sketch1.addConstraint(Sketcher.Constraint("Symmetric", 38, 3, 78, 3, -1, 1))
sketch1.addConstraint(Sketcher.Constraint("Symmetric", 39, 3, 79, 3, -1, 1))
sketch1.addConstraint(Sketcher.Constraint("Symmetric", 25, 3, 31, 3, -2))
sketch1.addConstraint(Sketcher.Constraint("Symmetric", 21, 3, 35, 3, -2))
sketch1.addConstraint(Sketcher.Constraint("Symmetric", 19, 3, 37, 3, -2))
sketch1.addConstraint(Sketcher.Constraint("Symmetric", 18, 3, 38, 3, -2))
sketch1.addConstraint(Sketcher.Constraint("Symmetric", 17, 3, 39, 3, -2))
sketch1.addConstraint(Sketcher.Constraint("Symmetric", 15, 3, 41, 3, -2))
sketch1.addConstraint(Sketcher.Constraint("Symmetric", 13, 3, 43, 3, -2))
sketch1.addConstraint(Sketcher.Constraint("Symmetric", 10, 2, 45, 2, -2))
sketch1.addConstraint(Sketcher.Constraint("Symmetric", 6, 2, 49, 2, -2))
sketch1.addConstraint(Sketcher.Constraint("Symmetric", 66, 2, 69, 2, -2))
sketch1.addConstraint(Sketcher.Constraint("Perpendicular", 6, 10))
sketch1.addConstraint(Sketcher.Constraint("Parallel", 10, 26))
sketch1.addConstraint(Sketcher.Constraint("Perpendicular", 26, 30))
sketch1.addConstraint(Sketcher.Constraint("Horizontal", 19, 3, 21, 3))
sketch1.addConstraint(Sketcher.Constraint("Horizontal", 3, 3, 53, 3))
sketch1.addConstraint(Sketcher.Constraint("Horizontal", 37, 3, 19, 2))
sketch1.addConstraint(Sketcher.Constraint("Horizontal", 20, 2, 21, 2))
sketch1.addConstraint(Sketcher.Constraint("Horizontal", 34, 2, 35, 2))
sketch1.addConstraint(Sketcher.Constraint("Horizontal", 77, 3, 59, 2))
sketch1.addConstraint(Sketcher.Constraint("Horizontal", 74, 2, 75, 2))
sketch1.addConstraint(Sketcher.Constraint("Vertical", 15, 3, 17, 3))
sketch1.addConstraint(Sketcher.Constraint("Vertical", 33, 3, 63, 3))
sketch1.addConstraint(Sketcher.Constraint("Vertical", 23, 3, 73, 3))
sketch1.addConstraint(Sketcher.Constraint("Vertical", 79, 3, 0, 2))
sketch1.addConstraint(Sketcher.Constraint("Vertical", 0, 2, 1, 2))
sketch1.addConstraint(Sketcher.Constraint("Vertical", 14, 2, 15, 2))
sketch1.addConstraint(Sketcher.Constraint("Vertical", 57, 3, 39, 2))
sketch1.addConstraint(Sketcher.Constraint("Vertical", 54, 2, 55, 2))
sketch1.addConstraint(Sketcher.Constraint("Equal", 76, 0))
sketch1.addConstraint(Sketcher.Constraint("Equal", 74, 2))
sketch1.addConstraint(Sketcher.Constraint("Equal", 72, 4))
sketch1.addConstraint(Sketcher.Constraint("Equal", 68, 8))
sketch1.addConstraint(Sketcher.Constraint("Equal", 10, 26))
sketch1.addConstraint(Sketcher.Constraint("Radius", 1, Q("0.02 in")))
sketch1.addConstraint(Sketcher.Constraint("Radius", 5, Q("0.04 in")))
sketch1.addConstraint(Sketcher.Constraint("Diameter", 80, Q("0.205 in")))
sketch1.addConstraint(Sketcher.Constraint("Radius", 7, Q("0.125 in")))
sketch1.addConstraint(Sketcher.Constraint("Radius", 18, Q("0.083 in")))
sketch1.addConstraint(Sketcher.Constraint("DistanceX", 1, 3, -1, 1, Q("0.5 in")))
sketch1.addConstraint(Sketcher.Constraint("DistanceY", -1, 1, 19, 3, Q("0.5 in")))
sketch1.addConstraint(Sketcher.Constraint("Radius", 3, Q("0.0435 in")))
sketch1.addConstraint(Sketcher.Constraint("DistanceY", 3, 3, -1, 1, Q("0.171 in")))
sketch1.addConstraint(Sketcher.Constraint("DistanceX", 7, 3, -1, 1, Q("0.302 in")))
sketch1.addConstraint(Sketcher.Constraint("DistanceY", -1, 1, 17, 3, Q("0.396 in")))
sketch1.addConstraint(Sketcher.Constraint("DistanceX", 18, 3, -1, 1, Q("0.417 in")))
sketch1.addConstraint(Sketcher.Constraint("DistanceY", -1, 1, 18, 3, Q("0.417 in")))
sketch1.addConstraint(Sketcher.Constraint("DistanceX", 20, 1, 20, 2, 3.217316))
sketch1.addConstraint(Sketcher.Constraint("DistanceX", 24, 2, 24, 1, 2.131394))
pad1 = body.newObject("PartDesign::Pad", "Pad")
pad1.Profile = sketch1
pad1.Length = Q("7.628 in")
pad1.Midplane = True

doc.recompute()
